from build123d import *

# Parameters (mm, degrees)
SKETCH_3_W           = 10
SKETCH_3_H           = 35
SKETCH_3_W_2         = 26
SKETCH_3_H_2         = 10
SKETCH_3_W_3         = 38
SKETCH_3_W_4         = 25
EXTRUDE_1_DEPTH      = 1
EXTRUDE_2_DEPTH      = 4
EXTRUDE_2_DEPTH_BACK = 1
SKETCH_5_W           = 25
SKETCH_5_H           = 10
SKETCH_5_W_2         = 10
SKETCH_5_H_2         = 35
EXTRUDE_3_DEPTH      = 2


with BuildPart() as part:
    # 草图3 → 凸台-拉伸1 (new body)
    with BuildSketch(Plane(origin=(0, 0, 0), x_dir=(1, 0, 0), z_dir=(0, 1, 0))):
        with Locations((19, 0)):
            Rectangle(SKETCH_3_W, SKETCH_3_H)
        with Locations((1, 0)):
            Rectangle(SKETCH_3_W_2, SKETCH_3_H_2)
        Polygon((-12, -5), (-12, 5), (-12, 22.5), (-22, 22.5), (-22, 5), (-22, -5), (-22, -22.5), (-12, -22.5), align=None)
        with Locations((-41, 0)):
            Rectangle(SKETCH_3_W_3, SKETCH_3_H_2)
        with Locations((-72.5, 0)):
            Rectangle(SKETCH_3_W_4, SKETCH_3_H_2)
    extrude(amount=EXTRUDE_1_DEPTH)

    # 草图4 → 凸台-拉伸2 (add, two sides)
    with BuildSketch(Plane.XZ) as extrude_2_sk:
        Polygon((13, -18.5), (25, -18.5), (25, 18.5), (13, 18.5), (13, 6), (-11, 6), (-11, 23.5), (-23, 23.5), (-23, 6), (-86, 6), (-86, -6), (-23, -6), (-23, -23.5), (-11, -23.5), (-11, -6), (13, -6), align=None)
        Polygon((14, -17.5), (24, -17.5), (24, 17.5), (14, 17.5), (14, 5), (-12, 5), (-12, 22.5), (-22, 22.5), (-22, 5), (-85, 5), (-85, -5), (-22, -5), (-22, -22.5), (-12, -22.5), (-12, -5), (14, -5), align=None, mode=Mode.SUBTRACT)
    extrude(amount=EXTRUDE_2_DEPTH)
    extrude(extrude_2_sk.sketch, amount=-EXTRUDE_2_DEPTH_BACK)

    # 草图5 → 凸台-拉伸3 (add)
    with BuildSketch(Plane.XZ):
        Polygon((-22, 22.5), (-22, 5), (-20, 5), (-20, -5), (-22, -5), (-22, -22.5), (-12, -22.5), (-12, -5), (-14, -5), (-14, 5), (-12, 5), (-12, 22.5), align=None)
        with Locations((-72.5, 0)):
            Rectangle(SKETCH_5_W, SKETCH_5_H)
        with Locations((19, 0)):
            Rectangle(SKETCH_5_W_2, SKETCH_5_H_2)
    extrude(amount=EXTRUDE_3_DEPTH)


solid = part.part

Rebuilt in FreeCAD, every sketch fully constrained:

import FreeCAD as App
import Part
import Sketcher
Q = App.Units.Quantity

doc = App.newDocument("Part")
body = doc.addObject("PartDesign::Body", "Body")

sketch1 = doc.addObject("Sketcher::SketchObject", "Sketch")
body.addObject(sketch1)
sketch1.AttachmentSupport = (doc.XZ_Plane, [""])
sketch1.MapMode = "FlatFace"
sketch1.addGeometry(Part.LineSegment(App.Vector(14, 5, 0), App.Vector(14, 18, 0)), False)
sketch1.addGeometry(Part.LineSegment(App.Vector(14, 18, 0), App.Vector(24, 18, 0)), False)
sketch1.addGeometry(Part.LineSegment(App.Vector(24, 18, 0), App.Vector(24, -18, 0)), False)
sketch1.addGeometry(Part.LineSegment(App.Vector(24, -18, 0), App.Vector(14, -18, 0)), False)
sketch1.addGeometry(Part.LineSegment(App.Vector(14, -18, 0), App.Vector(14, -5, 0)), False)
sketch1.addGeometry(Part.LineSegment(App.Vector(14, -5, 0), App.Vector(-12, -5, 0)), False)
sketch1.addGeometry(Part.LineSegment(App.Vector(-12, -5, 0), App.Vector(-12, -22, 0)), False)
sketch1.addGeometry(Part.LineSegment(App.Vector(-12, -22, 0), App.Vector(-22, -22, 0)), False)
sketch1.addGeometry(Part.LineSegment(App.Vector(-22, -22, 0), App.Vector(-22, -5, 0)), False)
sketch1.addGeometry(Part.LineSegment(App.Vector(-22, -5, 0), App.Vector(-85, -5, 0)), False)
sketch1.addGeometry(Part.LineSegment(App.Vector(-85, -5, 0), App.Vector(-85, 5, 0)), False)
sketch1.addGeometry(Part.LineSegment(App.Vector(-85, 5, 0), App.Vector(-22, 5, 0)), False)
sketch1.addGeometry(Part.LineSegment(App.Vector(-22, 5, 0), App.Vector(-22, 22, 0)), False)
sketch1.addGeometry(Part.LineSegment(App.Vector(-22, 22, 0), App.Vector(-12, 22, 0)), False)
sketch1.addGeometry(Part.LineSegment(App.Vector(-12, 22, 0), App.Vector(-12, 5, 0)), False)
sketch1.addGeometry(Part.LineSegment(App.Vector(-12, 5, 0), App.Vector(14, 5, 0)), False)
sketch1.addConstraint(Sketcher.Constraint("Coincident", 0, 2, 1, 1))
sketch1.addConstraint(Sketcher.Constraint("Coincident", 1, 2, 2, 1))
sketch1.addConstraint(Sketcher.Constraint("Coincident", 2, 2, 3, 1))
sketch1.addConstraint(Sketcher.Constraint("Coincident", 3, 2, 4, 1))
sketch1.addConstraint(Sketcher.Constraint("Coincident", 4, 2, 5, 1))
sketch1.addConstraint(Sketcher.Constraint("Coincident", 5, 2, 6, 1))
sketch1.addConstraint(Sketcher.Constraint("Coincident", 6, 2, 7, 1))
sketch1.addConstraint(Sketcher.Constraint("Coincident", 7, 2, 8, 1))
sketch1.addConstraint(Sketcher.Constraint("Coincident", 8, 2, 9, 1))
sketch1.addConstraint(Sketcher.Constraint("Coincident", 9, 2, 10, 1))
sketch1.addConstraint(Sketcher.Constraint("Coincident", 10, 2, 11, 1))
sketch1.addConstraint(Sketcher.Constraint("Coincident", 11, 2, 12, 1))
sketch1.addConstraint(Sketcher.Constraint("Coincident", 12, 2, 13, 1))
sketch1.addConstraint(Sketcher.Constraint("Coincident", 13, 2, 14, 1))
sketch1.addConstraint(Sketcher.Constraint("Coincident", 14, 2, 15, 1))
sketch1.addConstraint(Sketcher.Constraint("Coincident", 15, 2, 0, 1))
sketch1.addConstraint(Sketcher.Constraint("Vertical", 0))
sketch1.addConstraint(Sketcher.Constraint("Horizontal", 1))
sketch1.addConstraint(Sketcher.Constraint("Vertical", 2))
sketch1.addConstraint(Sketcher.Constraint("Horizontal", 3))
sketch1.addConstraint(Sketcher.Constraint("Vertical", 4))
sketch1.addConstraint(Sketcher.Constraint("Horizontal", 5))
sketch1.addConstraint(Sketcher.Constraint("Vertical", 6))
sketch1.addConstraint(Sketcher.Constraint("Horizontal", 7))
sketch1.addConstraint(Sketcher.Constraint("Vertical", 8))
sketch1.addConstraint(Sketcher.Constraint("Horizontal", 9))
sketch1.addConstraint(Sketcher.Constraint("Vertical", 10))
sketch1.addConstraint(Sketcher.Constraint("Horizontal", 11))
sketch1.addConstraint(Sketcher.Constraint("Vertical", 12))
sketch1.addConstraint(Sketcher.Constraint("Horizontal", 13))
sketch1.addConstraint(Sketcher.Constraint("Vertical", 14))
sketch1.addConstraint(Sketcher.Constraint("Horizontal", 15))
sketch1.addConstraint(Sketcher.Constraint("Symmetric", 0, 2, 3, 2, -1))
sketch1.addConstraint(Sketcher.Constraint("Symmetric", 8, 2, 11, 2, -1))
sketch1.addConstraint(Sketcher.Constraint("Symmetric", 6, 2, 13, 2, -1))
sketch1.addConstraint(Sketcher.Constraint("Horizontal", 5, 2, 8, 2))
sketch1.addConstraint(Sketcher.Constraint("Horizontal", 11, 2, 14, 2))
sketch1.addConstraint(Sketcher.Constraint("Equal", 3, 7))
sketch1.addConstraint(Sketcher.Constraint("Equal", 13, 10))
sketch1.addConstraint(Sketcher.Constraint("DistanceX", 1, 1, 1, 2, Q("10 mm")))
sketch1.addConstraint(Sketcher.Constraint("DistanceX", 5, 2, 5, 1, Q("26 mm")))
sketch1.addConstraint(Sketcher.Constraint("DistanceX", 9, 2, 9, 1, Q("63 mm")))
sketch1.addConstraint(Sketcher.Constraint("DistanceY", 2, 2, 2, 1, Q("35 mm")))
sketch1.addConstraint(Sketcher.Constraint("DistanceY", 6, 2, 6, 1, Q("17.5 mm")))
sketch1.addConstraint(Sketcher.Constraint("DistanceX", -1, 1, 0, 2, Q("14 mm")))
pad1 = doc.addObject("PartDesign::Pad", "Pad")
body.addObject(pad1)
pad1.Profile = sketch1
pad1.Length = 1
pad1.Reversed = True

sketch2 = doc.addObject("Sketcher::SketchObject", "Sketch001")
body.addObject(sketch2)
sketch2.AttachmentSupport = (doc.XZ_Plane, [""])
sketch2.MapMode = "FlatFace"
sketch2.addGeometry(Part.LineSegment(App.Vector(13, -18, 0), App.Vector(25, -18, 0)), False)
sketch2.addGeometry(Part.LineSegment(App.Vector(25, -18, 0), App.Vector(25, 18, 0)), False)
sketch2.addGeometry(Part.LineSegment(App.Vector(25, 18, 0), App.Vector(13, 18, 0)), False)
sketch2.addGeometry(Part.LineSegment(App.Vector(13, 18, 0), App.Vector(13, 6, 0)), False)
sketch2.addGeometry(Part.LineSegment(App.Vector(13, 6, 0), App.Vector(-11, 6, 0)), False)
sketch2.addGeometry(Part.LineSegment(App.Vector(-11, 6, 0), App.Vector(-11, 24, 0)), False)
sketch2.addGeometry(Part.LineSegment(App.Vector(-11, 24, 0), App.Vector(-23, 24, 0)), False)
sketch2.addGeometry(Part.LineSegment(App.Vector(-23, 24, 0), App.Vector(-23, 6, 0)), False)
sketch2.addGeometry(Part.LineSegment(App.Vector(-23, 6, 0), App.Vector(-86, 6, 0)), False)
sketch2.addGeometry(Part.LineSegment(App.Vector(-86, 6, 0), App.Vector(-86, -6, 0)), False)
sketch2.addGeometry(Part.LineSegment(App.Vector(-86, -6, 0), App.Vector(-23, -6, 0)), False)
sketch2.addGeometry(Part.LineSegment(App.Vector(-23, -6, 0), App.Vector(-23, -24, 0)), False)
sketch2.addGeometry(Part.LineSegment(App.Vector(-23, -24, 0), App.Vector(-11, -24, 0)), False)
sketch2.addGeometry(Part.LineSegment(App.Vector(-11, -24, 0), App.Vector(-11, -6, 0)), False)
sketch2.addGeometry(Part.LineSegment(App.Vector(-11, -6, 0), App.Vector(13, -6, 0)), False)
sketch2.addGeometry(Part.LineSegment(App.Vector(13, -6, 0), App.Vector(13, -18, 0)), False)
sketch2.addGeometry(Part.LineSegment(App.Vector(24, -18, 0), App.Vector(14, -18, 0)), False)
sketch2.addGeometry(Part.LineSegment(App.Vector(14, -18, 0), App.Vector(14, -5, 0)), False)
sketch2.addGeometry(Part.LineSegment(App.Vector(14, -5, 0), App.Vector(-12, -5, 0)), False)
sketch2.addGeometry(Part.LineSegment(App.Vector(-12, -5, 0), App.Vector(-12, -22, 0)), False)
sketch2.addGeometry(Part.LineSegment(App.Vector(-12, -22, 0), App.Vector(-22, -22, 0)), False)
sketch2.addGeometry(Part.LineSegment(App.Vector(-22, -22, 0), App.Vector(-22, -5, 0)), False)
sketch2.addGeometry(Part.LineSegment(App.Vector(-22, -5, 0), App.Vector(-85, -5, 0)), False)
sketch2.addGeometry(Part.LineSegment(App.Vector(-85, -5, 0), App.Vector(-85, 5, 0)), False)
sketch2.addGeometry(Part.LineSegment(App.Vector(-85, 5, 0), App.Vector(-22, 5, 0)), False)
sketch2.addGeometry(Part.LineSegment(App.Vector(-22, 5, 0), App.Vector(-22, 22, 0)), False)
sketch2.addGeometry(Part.LineSegment(App.Vector(-22, 22, 0), App.Vector(-12, 22, 0)), False)
sketch2.addGeometry(Part.LineSegment(App.Vector(-12, 22, 0), App.Vector(-12, 5, 0)), False)
sketch2.addGeometry(Part.LineSegment(App.Vector(-12, 5, 0), App.Vector(14, 5, 0)), False)
sketch2.addGeometry(Part.LineSegment(App.Vector(14, 5, 0), App.Vector(14, 18, 0)), False)
sketch2.addGeometry(Part.LineSegment(App.Vector(14, 18, 0), App.Vector(24, 18, 0)), False)
sketch2.addGeometry(Part.LineSegment(App.Vector(24, 18, 0), App.Vector(24, -18, 0)), False)
sketch2.addConstraint(Sketcher.Constraint("Coincident", 0, 2, 1, 1))
sketch2.addConstraint(Sketcher.Constraint("Coincident", 1, 2, 2, 1))
sketch2.addConstraint(Sketcher.Constraint("Coincident", 2, 2, 3, 1))
sketch2.addConstraint(Sketcher.Constraint("Coincident", 3, 2, 4, 1))
sketch2.addConstraint(Sketcher.Constraint("Coincident", 4, 2, 5, 1))
sketch2.addConstraint(Sketcher.Constraint("Coincident", 5, 2, 6, 1))
sketch2.addConstraint(Sketcher.Constraint("Coincident", 6, 2, 7, 1))
sketch2.addConstraint(Sketcher.Constraint("Coincident", 7, 2, 8, 1))
sketch2.addConstraint(Sketcher.Constraint("Coincident", 8, 2, 9, 1))
sketch2.addConstraint(Sketcher.Constraint("Coincident", 9, 2, 10, 1))
sketch2.addConstraint(Sketcher.Constraint("Coincident", 10, 2, 11, 1))
sketch2.addConstraint(Sketcher.Constraint("Coincident", 11, 2, 12, 1))
sketch2.addConstraint(Sketcher.Constraint("Coincident", 12, 2, 13, 1))
sketch2.addConstraint(Sketcher.Constraint("Coincident", 13, 2, 14, 1))
sketch2.addConstraint(Sketcher.Constraint("Coincident", 14, 2, 15, 1))
sketch2.addConstraint(Sketcher.Constraint("Coincident", 15, 2, 0, 1))
sketch2.addConstraint(Sketcher.Constraint("Coincident", 16, 2, 17, 1))
sketch2.addConstraint(Sketcher.Constraint("Coincident", 17, 2, 18, 1))
sketch2.addConstraint(Sketcher.Constraint("Coincident", 18, 2, 19, 1))
sketch2.addConstraint(Sketcher.Constraint("Coincident", 19, 2, 20, 1))
sketch2.addConstraint(Sketcher.Constraint("Coincident", 20, 2, 21, 1))
sketch2.addConstraint(Sketcher.Constraint("Coincident", 21, 2, 22, 1))
sketch2.addConstraint(Sketcher.Constraint("Coincident", 22, 2, 23, 1))
sketch2.addConstraint(Sketcher.Constraint("Coincident", 23, 2, 24, 1))
sketch2.addConstraint(Sketcher.Constraint("Coincident", 24, 2, 25, 1))
sketch2.addConstraint(Sketcher.Constraint("Coincident", 25, 2, 26, 1))
sketch2.addConstraint(Sketcher.Constraint("Coincident", 26, 2, 27, 1))
sketch2.addConstraint(Sketcher.Constraint("Coincident", 27, 2, 28, 1))
sketch2.addConstraint(Sketcher.Constraint("Coincident", 28, 2, 29, 1))
sketch2.addConstraint(Sketcher.Constraint("Coincident", 29, 2, 30, 1))
sketch2.addConstraint(Sketcher.Constraint("Coincident", 30, 2, 31, 1))
sketch2.addConstraint(Sketcher.Constraint("Coincident", 31, 2, 16, 1))
sketch2.addConstraint(Sketcher.Constraint("Horizontal", 0))
sketch2.addConstraint(Sketcher.Constraint("Vertical", 1))
sketch2.addConstraint(Sketcher.Constraint("Horizontal", 2))
sketch2.addConstraint(Sketcher.Constraint("Vertical", 3))
sketch2.addConstraint(Sketcher.Constraint("Horizontal", 4))
sketch2.addConstraint(Sketcher.Constraint("Vertical", 5))
sketch2.addConstraint(Sketcher.Constraint("Horizontal", 6))
sketch2.addConstraint(Sketcher.Constraint("Vertical", 7))
sketch2.addConstraint(Sketcher.Constraint("Horizontal", 8))
sketch2.addConstraint(Sketcher.Constraint("Vertical", 9))
sketch2.addConstraint(Sketcher.Constraint("Horizontal", 10))
sketch2.addConstraint(Sketcher.Constraint("Vertical", 11))
sketch2.addConstraint(Sketcher.Constraint("Horizontal", 12))
sketch2.addConstraint(Sketcher.Constraint("Vertical", 13))
sketch2.addConstraint(Sketcher.Constraint("Horizontal", 14))
sketch2.addConstraint(Sketcher.Constraint("Vertical", 15))
sketch2.addConstraint(Sketcher.Constraint("Horizontal", 16))
sketch2.addConstraint(Sketcher.Constraint("Vertical", 17))
sketch2.addConstraint(Sketcher.Constraint("Horizontal", 18))
sketch2.addConstraint(Sketcher.Constraint("Vertical", 19))
sketch2.addConstraint(Sketcher.Constraint("Horizontal", 20))
sketch2.addConstraint(Sketcher.Constraint("Vertical", 21))
sketch2.addConstraint(Sketcher.Constraint("Horizontal", 22))
sketch2.addConstraint(Sketcher.Constraint("Vertical", 23))
sketch2.addConstraint(Sketcher.Constraint("Horizontal", 24))
sketch2.addConstraint(Sketcher.Constraint("Vertical", 25))
sketch2.addConstraint(Sketcher.Constraint("Horizontal", 26))
sketch2.addConstraint(Sketcher.Constraint("Vertical", 27))
sketch2.addConstraint(Sketcher.Constraint("Horizontal", 28))
sketch2.addConstraint(Sketcher.Constraint("Vertical", 29))
sketch2.addConstraint(Sketcher.Constraint("Horizontal", 30))
sketch2.addConstraint(Sketcher.Constraint("Vertical", 31))
sketch2.addConstraint(Sketcher.Constraint("Symmetric", 7, 2, 10, 2, -1))
sketch2.addConstraint(Sketcher.Constraint("Symmetric", 5, 2, 12, 2, -1))
sketch2.addConstraint(Sketcher.Constraint("Symmetric", 3, 2, 14, 2, -1))
sketch2.addConstraint(Sketcher.Constraint("Symmetric", 21, 2, 24, 2, -1))
sketch2.addConstraint(Sketcher.Constraint("Symmetric", 19, 2, 26, 2, -1))
sketch2.addConstraint(Sketcher.Constraint("Symmetric", 17, 2, 28, 2, -1))
sketch2.addConstraint(Sketcher.Constraint("Horizontal", 4, 2, 7, 2))
sketch2.addConstraint(Sketcher.Constraint("Horizontal", 18, 2, 21, 2))
sketch2.addConstraint(Sketcher.Constraint("Equal", 2, 6))
sketch2.addConstraint(Sketcher.Constraint("Equal", 16, 20))
sketch2.addConstraint(Sketcher.Constraint("Equal", 10, 22))
sketch2.addConstraint(Sketcher.Constraint("Equal", 12, 9))
sketch2.addConstraint(Sketcher.Constraint("Equal", 3, 15))
sketch2.addConstraint(Sketcher.Constraint("Equal", 15, 17))
sketch2.addConstraint(Sketcher.Constraint("Equal", 13, 19))
sketch2.addConstraint(Sketcher.Constraint("Equal", 30, 23))
sketch2.addConstraint(Sketcher.Constraint("Equal", 17, 29))
sketch2.addConstraint(Sketcher.Constraint("DistanceX", 0, 1, 0, 2, Q("12 mm")))
sketch2.addConstraint(Sketcher.Constraint("DistanceX", 4, 2, 4, 1, Q("24 mm")))
sketch2.addConstraint(Sketcher.Constraint("DistanceX", 8, 2, 8, 1, Q("63 mm")))
sketch2.addConstraint(Sketcher.Constraint("DistanceX", 16, 2, 16, 1, Q("10 mm")))
sketch2.addConstraint(Sketcher.Constraint("DistanceX", 18, 2, 18, 1, Q("26 mm")))
sketch2.addConstraint(Sketcher.Constraint("DistanceY", 1, 1, 1, 2, Q("37 mm")))
sketch2.addConstraint(Sketcher.Constraint("DistanceY", 5, 1, 5, 2, Q("17.5 mm")))
sketch2.addConstraint(Sketcher.Constraint("DistanceX", -1, 1, 0, 2, Q("25 mm")))
sketch2.addConstraint(Sketcher.Constraint("DistanceX", -1, 1, 16, 2, Q("14 mm")))
pad2 = doc.addObject("PartDesign::Pad", "Pad001")
body.addObject(pad2)
pad2.Profile = sketch2
pad2.Type = "TwoLengths"
pad2.Length = 4
pad2.Length2 = 1

sketch3 = doc.addObject("Sketcher::SketchObject", "Sketch002")
body.addObject(sketch3)
sketch3.AttachmentSupport = (doc.XZ_Plane, [""])
sketch3.MapMode = "FlatFace"
sketch3.addGeometry(Part.LineSegment(App.Vector(-22, 22.5, 0), App.Vector(-22, 5, 0)), False)
sketch3.addGeometry(Part.LineSegment(App.Vector(-22, 5, 0), App.Vector(-20, 5, 0)), False)
sketch3.addGeometry(Part.LineSegment(App.Vector(-20, 5, 0), App.Vector(-20, -5, 0)), False)
sketch3.addGeometry(Part.LineSegment(App.Vector(-20, -5, 0), App.Vector(-22, -5, 0)), False)
sketch3.addGeometry(Part.LineSegment(App.Vector(-22, -5, 0), App.Vector(-22, -22.5, 0)), False)
sketch3.addGeometry(Part.LineSegment(App.Vector(-22, -22.5, 0), App.Vector(-12, -22.5, 0)), False)
sketch3.addGeometry(Part.LineSegment(App.Vector(-12, -22.5, 0), App.Vector(-12, -5, 0)), False)
sketch3.addGeometry(Part.LineSegment(App.Vector(-12, -5, 0), App.Vector(-14, -5, 0)), False)
sketch3.addGeometry(Part.LineSegment(App.Vector(-14, -5, 0), App.Vector(-14, 5, 0)), False)
sketch3.addGeometry(Part.LineSegment(App.Vector(-14, 5, 0), App.Vector(-12, 5, 0)), False)
sketch3.addGeometry(Part.LineSegment(App.Vector(-12, 5, 0), App.Vector(-12, 22.5, 0)), False)
sketch3.addGeometry(Part.LineSegment(App.Vector(-12, 22.5, 0), App.Vector(-22, 22.5, 0)), False)
sketch3.addGeometry(Part.LineSegment(App.Vector(-85, 5, 0), App.Vector(-85, -5, 0)), False)
sketch3.addGeometry(Part.LineSegment(App.Vector(-85, -5, 0), App.Vector(-60, -5, 0)), False)
sketch3.addGeometry(Part.LineSegment(App.Vector(-60, -5, 0), App.Vector(-60, 5, 0)), False)
sketch3.addGeometry(Part.LineSegment(App.Vector(-60, 5, 0), App.Vector(-85, 5, 0)), False)
sketch3.addGeometry(Part.LineSegment(App.Vector(14, 17.5, 0), App.Vector(14, -17.5, 0)), False)
sketch3.addGeometry(Part.LineSegment(App.Vector(14, -17.5, 0), App.Vector(24, -17.5, 0)), False)
sketch3.addGeometry(Part.LineSegment(App.Vector(24, -17.5, 0), App.Vector(24, 17.5, 0)), False)
sketch3.addGeometry(Part.LineSegment(App.Vector(24, 17.5, 0), App.Vector(14, 17.5, 0)), False)
sketch3.addConstraint(Sketcher.Constraint("Coincident", 0, 2, 1, 1))
sketch3.addConstraint(Sketcher.Constraint("Coincident", 1, 2, 2, 1))
sketch3.addConstraint(Sketcher.Constraint("Coincident", 2, 2, 3, 1))
sketch3.addConstraint(Sketcher.Constraint("Coincident", 3, 2, 4, 1))
sketch3.addConstraint(Sketcher.Constraint("Coincident", 4, 2, 5, 1))
sketch3.addConstraint(Sketcher.Constraint("Coincident", 5, 2, 6, 1))
sketch3.addConstraint(Sketcher.Constraint("Coincident", 6, 2, 7, 1))
sketch3.addConstraint(Sketcher.Constraint("Coincident", 7, 2, 8, 1))
sketch3.addConstraint(Sketcher.Constraint("Coincident", 8, 2, 9, 1))
sketch3.addConstraint(Sketcher.Constraint("Coincident", 9, 2, 10, 1))
sketch3.addConstraint(Sketcher.Constraint("Coincident", 10, 2, 11, 1))
sketch3.addConstraint(Sketcher.Constraint("Coincident", 11, 2, 0, 1))
sketch3.addConstraint(Sketcher.Constraint("Coincident", 12, 2, 13, 1))
sketch3.addConstraint(Sketcher.Constraint("Coincident", 13, 2, 14, 1))
sketch3.addConstraint(Sketcher.Constraint("Coincident", 14, 2, 15, 1))
sketch3.addConstraint(Sketcher.Constraint("Coincident", 15, 2, 12, 1))
sketch3.addConstraint(Sketcher.Constraint("Coincident", 16, 2, 17, 1))
sketch3.addConstraint(Sketcher.Constraint("Coincident", 17, 2, 18, 1))
sketch3.addConstraint(Sketcher.Constraint("Coincident", 18, 2, 19, 1))
sketch3.addConstraint(Sketcher.Constraint("Coincident", 19, 2, 16, 1))
sketch3.addConstraint(Sketcher.Constraint("Vertical", 0))
sketch3.addConstraint(Sketcher.Constraint("Horizontal", 1))
sketch3.addConstraint(Sketcher.Constraint("Vertical", 2))
sketch3.addConstraint(Sketcher.Constraint("Horizontal", 3))
sketch3.addConstraint(Sketcher.Constraint("Vertical", 4))
sketch3.addConstraint(Sketcher.Constraint("Horizontal", 5))
sketch3.addConstraint(Sketcher.Constraint("Vertical", 6))
sketch3.addConstraint(Sketcher.Constraint("Horizontal", 7))
sketch3.addConstraint(Sketcher.Constraint("Vertical", 8))
sketch3.addConstraint(Sketcher.Constraint("Horizontal", 9))
sketch3.addConstraint(Sketcher.Constraint("Vertical", 10))
sketch3.addConstraint(Sketcher.Constraint("Horizontal", 11))
sketch3.addConstraint(Sketcher.Constraint("Vertical", 12))
sketch3.addConstraint(Sketcher.Constraint("Horizontal", 13))
sketch3.addConstraint(Sketcher.Constraint("Vertical", 14))
sketch3.addConstraint(Sketcher.Constraint("Horizontal", 15))
sketch3.addConstraint(Sketcher.Constraint("Vertical", 16))
sketch3.addConstraint(Sketcher.Constraint("Horizontal", 17))
sketch3.addConstraint(Sketcher.Constraint("Vertical", 18))
sketch3.addConstraint(Sketcher.Constraint("Horizontal", 19))
sketch3.addConstraint(Sketcher.Constraint("Symmetric", 0, 2, 3, 2, -1))
sketch3.addConstraint(Sketcher.Constraint("Symmetric", 6, 2, 9, 2, -1))
sketch3.addConstraint(Sketcher.Constraint("Horizontal", 3, 2, 6, 2))
sketch3.addConstraint(Sketcher.Constraint("Horizontal", 7, 2, 12, 2))
sketch3.addConstraint(Sketcher.Constraint("Horizontal", 9, 2, 14, 2))
sketch3.addConstraint(Sketcher.Constraint("Equal", 3, 7))
sketch3.addConstraint(Sketcher.Constraint("Equal", 11, 17))
sketch3.addConstraint(Sketcher.Constraint("Equal", 19, 2))
sketch3.addConstraint(Sketcher.Constraint("Equal", 0, 4))
sketch3.addConstraint(Sketcher.Constraint("DistanceX", 1, 1, 1, 2, Q("2 mm")))
sketch3.addConstraint(Sketcher.Constraint("DistanceX", 5, 1, 5, 2, Q("10 mm")))
sketch3.addConstraint(Sketcher.Constraint("DistanceX", 13, 1, 13, 2, Q("25 mm")))
sketch3.addConstraint(Sketcher.Constraint("DistanceY", 16, 2, 16, 1, Q("35 mm")))
sketch3.addConstraint(Sketcher.Constraint("DistanceY", 0, 2, 0, 1, Q("17.5 mm")))
sketch3.addConstraint(Sketcher.Constraint("DistanceX", 0, 2, -1, 1, Q("22 mm")))
sketch3.addConstraint(Sketcher.Constraint("DistanceX", 12, 2, -1, 1, Q("85 mm")))
sketch3.addConstraint(Sketcher.Constraint("DistanceX", -1, 1, 16, 2, Q("14 mm")))
sketch3.addConstraint(Sketcher.Constraint("DistanceY", 5, 2, 16, 2, Q("5 mm")))
pad3 = doc.addObject("PartDesign::Pad", "Pad002")
body.addObject(pad3)
pad3.Profile = sketch3
pad3.Length = 2

doc.recompute()
